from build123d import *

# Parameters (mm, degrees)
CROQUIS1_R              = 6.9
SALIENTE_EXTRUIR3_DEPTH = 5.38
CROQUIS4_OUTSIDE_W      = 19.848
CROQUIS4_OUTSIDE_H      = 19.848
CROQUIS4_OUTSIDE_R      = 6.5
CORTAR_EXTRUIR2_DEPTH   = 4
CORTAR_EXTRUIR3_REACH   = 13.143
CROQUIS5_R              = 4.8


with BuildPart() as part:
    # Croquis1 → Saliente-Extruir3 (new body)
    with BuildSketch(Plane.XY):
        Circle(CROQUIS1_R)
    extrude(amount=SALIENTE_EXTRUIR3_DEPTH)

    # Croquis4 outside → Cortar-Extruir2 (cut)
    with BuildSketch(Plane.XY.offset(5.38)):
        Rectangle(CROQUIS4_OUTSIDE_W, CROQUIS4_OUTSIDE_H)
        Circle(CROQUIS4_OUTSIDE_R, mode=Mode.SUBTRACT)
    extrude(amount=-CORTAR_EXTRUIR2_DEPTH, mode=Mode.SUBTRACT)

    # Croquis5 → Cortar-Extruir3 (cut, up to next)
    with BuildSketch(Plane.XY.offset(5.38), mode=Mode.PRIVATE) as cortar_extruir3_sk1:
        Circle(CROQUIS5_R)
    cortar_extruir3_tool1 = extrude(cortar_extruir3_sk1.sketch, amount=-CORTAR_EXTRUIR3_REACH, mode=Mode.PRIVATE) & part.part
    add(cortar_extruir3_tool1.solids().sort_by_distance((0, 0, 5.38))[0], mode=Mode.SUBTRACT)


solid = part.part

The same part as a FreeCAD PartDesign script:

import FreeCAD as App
import Part
import Sketcher

doc = App.newDocument("Part")
body = doc.addObject("PartDesign::Body", "Body")

# Sketch on XY plane
sketch1 = doc.addObject("Sketcher::SketchObject", "Sketch")
body.addObject(sketch1)
sketch1.AttachmentSupport = (doc.XY_Plane, [""])
sketch1.MapMode = "FlatFace"
sketch1.addGeometry(Part.Circle(App.Vector(0, 0, 0), App.Vector(0, 0, 1), 6.9), False)
sketch1.addConstraint(Sketcher.Constraint("Coincident", 0, 3, -1, 1))
sketch1.addConstraint(Sketcher.Constraint("Diameter", 0, 13.8))
pad1 = doc.addObject("PartDesign::Pad", "Pad")
body.addObject(pad1)
pad1.Profile = sketch1
pad1.Length = 5.38

# Sketch on XY plane
sketch2 = doc.addObject("Sketcher::SketchObject", "Sketch001")
body.addObject(sketch2)
sketch2.AttachmentSupport = (doc.XY_Plane, [""])
sketch2.MapMode = "FlatFace"
sketch2.AttachmentOffset = App.Placement(App.Vector(0, 0, 5.38), App.Rotation())
sketch2.addGeometry(Part.LineSegment(App.Vector(-9.924, 9.924, 0), App.Vector(-9.924, -9.924, 0)), False)
sketch2.addGeometry(Part.LineSegment(App.Vector(-9.924, -9.924, 0), App.Vector(9.924, -9.924, 0)), False)
sketch2.addGeometry(Part.LineSegment(App.Vector(9.924, -9.924, 0), App.Vector(9.924, 9.924, 0)), False)
sketch2.addGeometry(Part.LineSegment(App.Vector(9.924, 9.924, 0), App.Vector(-9.924, 9.924, 0)), False)
sketch2.addGeometry(Part.Circle(App.Vector(0, 0, 0), App.Vector(0, 0, 1), 6.5), False)
sketch2.addConstraint(Sketcher.Constraint("Coincident", 0, 2, 1, 1))
sketch2.addConstraint(Sketcher.Constraint("Coincident", 1, 2, 2, 1))
sketch2.addConstraint(Sketcher.Constraint("Coincident", 2, 2, 3, 1))
sketch2.addConstraint(Sketcher.Constraint("Coincident", 3, 2, 0, 1))
sketch2.addConstraint(Sketcher.Constraint("Vertical", 0))
sketch2.addConstraint(Sketcher.Constraint("Horizontal", 1))
sketch2.addConstraint(Sketcher.Constraint("Vertical", 2))
sketch2.addConstraint(Sketcher.Constraint("Horizontal", 3))
sketch2.addConstraint(Sketcher.Constraint("Coincident", 4, 3, -1, 1))
sketch2.addConstraint(Sketcher.Constraint("Symmetric", 0, 2, 2, 2, -1, 1))
sketch2.addConstraint(Sketcher.Constraint("Equal", 3, 0))
sketch2.addConstraint(Sketcher.Constraint("Diameter", 4, 13.0))
sketch2.addConstraint(Sketcher.Constraint("DistanceX", 1, 1, 1, 2, 19.848))
pocket1 = doc.addObject("PartDesign::Pocket", "Pocket")
body.addObject(pocket1)
pocket1.Profile = sketch2
pocket1.Length = 4

# Sketch on XY plane
sketch3 = doc.addObject("Sketcher::SketchObject", "Sketch002")
body.addObject(sketch3)
sketch3.AttachmentSupport = (doc.XY_Plane, [""])
sketch3.MapMode = "FlatFace"
sketch3.AttachmentOffset = App.Placement(App.Vector(0, 0, 5.38), App.Rotation())
sketch3.addGeometry(Part.Circle(App.Vector(0, 0, 0), App.Vector(0, 0, 1), 4.8), False)
sketch3.addConstraint(Sketcher.Constraint("Coincident", 0, 3, -1, 1))
sketch3.addConstraint(Sketcher.Constraint("Diameter", 0, 9.6))
pocket2 = doc.addObject("PartDesign::Pocket", "Pocket001")
body.addObject(pocket2)
pocket2.Profile = sketch3
pocket2.Type = "UpToFirst"

doc.recompute()
